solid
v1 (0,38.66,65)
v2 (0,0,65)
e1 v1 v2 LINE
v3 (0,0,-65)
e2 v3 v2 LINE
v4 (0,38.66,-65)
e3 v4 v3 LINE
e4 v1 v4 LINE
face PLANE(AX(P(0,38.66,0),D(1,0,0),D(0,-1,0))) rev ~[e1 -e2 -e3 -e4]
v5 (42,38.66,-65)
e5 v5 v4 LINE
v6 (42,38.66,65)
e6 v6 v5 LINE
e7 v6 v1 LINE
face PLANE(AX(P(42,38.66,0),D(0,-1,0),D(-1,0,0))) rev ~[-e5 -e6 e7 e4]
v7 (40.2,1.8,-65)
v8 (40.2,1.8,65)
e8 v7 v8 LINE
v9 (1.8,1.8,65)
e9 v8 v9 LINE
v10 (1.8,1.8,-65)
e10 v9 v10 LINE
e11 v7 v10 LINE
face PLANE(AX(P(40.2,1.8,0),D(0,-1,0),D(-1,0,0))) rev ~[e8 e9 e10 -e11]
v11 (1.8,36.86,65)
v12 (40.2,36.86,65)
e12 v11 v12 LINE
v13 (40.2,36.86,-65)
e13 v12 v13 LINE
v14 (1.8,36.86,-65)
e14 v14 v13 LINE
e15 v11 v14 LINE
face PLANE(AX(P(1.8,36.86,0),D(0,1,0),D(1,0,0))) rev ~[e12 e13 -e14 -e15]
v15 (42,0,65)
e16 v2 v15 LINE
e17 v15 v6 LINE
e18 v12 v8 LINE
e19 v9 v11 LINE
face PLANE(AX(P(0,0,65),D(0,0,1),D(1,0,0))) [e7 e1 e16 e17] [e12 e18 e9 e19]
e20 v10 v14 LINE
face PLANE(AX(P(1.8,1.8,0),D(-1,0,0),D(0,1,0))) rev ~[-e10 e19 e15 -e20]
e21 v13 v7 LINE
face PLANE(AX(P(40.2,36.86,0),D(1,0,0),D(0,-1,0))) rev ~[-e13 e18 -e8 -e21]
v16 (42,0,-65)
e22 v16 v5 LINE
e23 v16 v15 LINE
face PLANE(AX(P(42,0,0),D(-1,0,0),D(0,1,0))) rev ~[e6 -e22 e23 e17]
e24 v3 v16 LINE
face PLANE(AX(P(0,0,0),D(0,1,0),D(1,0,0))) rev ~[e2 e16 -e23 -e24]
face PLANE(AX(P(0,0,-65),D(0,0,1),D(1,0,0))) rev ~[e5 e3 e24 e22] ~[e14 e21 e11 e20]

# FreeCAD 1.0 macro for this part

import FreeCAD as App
import Part
import Sketcher
from FreeCAD import Vector

doc = App.newDocument("Part")
params = doc.addObject("Spreadsheet::Sheet", "Params")
for row, (alias, value) in enumerate([
    ("sketch1_width", "42 mm"),
    ("sketch1_height", "38.66 mm"),
    ("pad1_length", "130 mm"),
], start=1):
    params.set(f"A{row}", alias)
    params.set(f"B{row}", "=" + value)
    params.setAlias(f"B{row}", alias)

body = doc.addObject("PartDesign::Body", "Body")

sketch1 = body.newObject("Sketcher::SketchObject", "Sketch")
sketch1.AttachmentSupport = (doc.getObject("XY_Plane"), [""])
sketch1.MapMode = "FlatFace"
sketch1.addGeometry([
    Part.LineSegment(Vector(0, 39, 0), Vector(0, 0, 0)),
    Part.LineSegment(Vector(0, 0, 0), Vector(42, 0, 0)),
    Part.LineSegment(Vector(42, 0, 0), Vector(42, 39, 0)),
    Part.LineSegment(Vector(42, 39, 0), Vector(0, 39, 0)),
    Part.LineSegment(Vector(40, 37, 0), Vector(40, 2, 0)),
    Part.LineSegment(Vector(40, 2, 0), Vector(2, 2, 0)),
    Part.LineSegment(Vector(2, 2, 0), Vector(2, 37, 0)),
    Part.LineSegment(Vector(2, 37, 0), Vector(40, 37, 0)),
], False)
sketch1.addConstraint([
    Sketcher.Constraint("Coincident", 0, 2, 1, 1),
    Sketcher.Constraint("Coincident", 1, 2, 2, 1),
    Sketcher.Constraint("Coincident", 2, 2, 3, 1),
    Sketcher.Constraint("Coincident", 3, 2, 0, 1),
    Sketcher.Constraint("Coincident", 4, 2, 5, 1),
    Sketcher.Constraint("Coincident", 5, 2, 6, 1),
    Sketcher.Constraint("Coincident", 6, 2, 7, 1),
    Sketcher.Constraint("Coincident", 7, 2, 4, 1),
    Sketcher.Constraint("Vertical", 0),
    Sketcher.Constraint("Horizontal", 1),
    Sketcher.Constraint("Vertical", 2),
    Sketcher.Constraint("Horizontal", 3),
    Sketcher.Constraint("Vertical", 4),
    Sketcher.Constraint("Horizontal", 5),
    Sketcher.Constraint("Vertical", 6),
    Sketcher.Constraint("Horizontal", 7),
    Sketcher.Constraint("Coincident", 0, 2, -1, 1),
    Sketcher.Constraint("DistanceX", 1, 1, 1, 2, 42.0),
    Sketcher.Constraint("DistanceY", 0, 2, 0, 1, 38.66),
    Sketcher.Constraint("DistanceY", -1, 1, 4, 2, 1.8),
    Sketcher.Constraint("DistanceX", -1, 1, 5, 2, 1.8),
    Sketcher.Constraint("DistanceX", 4, 2, 1, 2, 1.8),
    Sketcher.Constraint("DistanceY", 6, 2, 3, 2, 1.8),
])
sketch1.setExpression("Constraints[17]", "Params.sketch1_width")
sketch1.setExpression("Constraints[18]", "Params.sketch1_height")
pad1 = body.newObject("PartDesign::Pad", "Pad")
pad1.Profile = sketch1
pad1.setExpression("Length", "Params.pad1_length")
pad1.Midplane = True

doc.recompute()
